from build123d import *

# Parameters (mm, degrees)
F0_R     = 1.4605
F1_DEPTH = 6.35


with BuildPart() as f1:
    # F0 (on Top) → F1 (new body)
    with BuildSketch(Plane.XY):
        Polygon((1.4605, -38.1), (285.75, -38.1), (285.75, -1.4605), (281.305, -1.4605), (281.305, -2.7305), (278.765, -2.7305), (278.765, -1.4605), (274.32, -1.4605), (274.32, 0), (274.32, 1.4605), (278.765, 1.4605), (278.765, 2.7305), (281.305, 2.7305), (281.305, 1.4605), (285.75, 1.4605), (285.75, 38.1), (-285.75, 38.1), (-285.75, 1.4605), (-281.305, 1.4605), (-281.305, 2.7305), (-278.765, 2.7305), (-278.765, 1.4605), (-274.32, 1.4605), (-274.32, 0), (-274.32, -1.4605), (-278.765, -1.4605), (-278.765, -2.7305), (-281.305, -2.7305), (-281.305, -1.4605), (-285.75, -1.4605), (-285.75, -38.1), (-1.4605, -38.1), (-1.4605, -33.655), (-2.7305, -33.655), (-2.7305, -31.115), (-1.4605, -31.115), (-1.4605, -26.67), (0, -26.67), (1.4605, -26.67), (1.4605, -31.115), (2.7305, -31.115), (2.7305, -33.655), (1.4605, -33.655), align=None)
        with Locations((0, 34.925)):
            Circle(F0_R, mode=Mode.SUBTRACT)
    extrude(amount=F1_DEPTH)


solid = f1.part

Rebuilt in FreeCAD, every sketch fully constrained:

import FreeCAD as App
import Part
import Sketcher
from FreeCAD import Vector
Q = App.Units.Quantity

doc = App.newDocument("Part")
params = doc.addObject("Spreadsheet::Sheet", "Params")
for row, (alias, value) in enumerate([
    ("sketch1_diameter", "0.115 in"),
    ("sketch1_width", "0.1 in"),
    ("sketch1_width2", "22.5 in"),
    ("sketch1_width3", "0.05 in"),
    ("sketch1_width4", "0.115 in"),
    ("pad1_length", "0.25 in"),
], start=1):
    params.set(f"A{row}", alias)
    params.set(f"B{row}", "=" + value)
    params.setAlias(f"B{row}", alias)

body = doc.addObject("PartDesign::Body", "Body")

# Sketch on XY plane
sketch1 = body.newObject("Sketcher::SketchObject", "Sketch")
sketch1.AttachmentSupport = (doc.getObject("XY_Plane"), [""])
sketch1.MapMode = "FlatFace"
sketch1.addGeometry(Part.LineSegment(Vector(1.4605, -38.1, 0), Vector(285.75, -38.1, 0)), False)
sketch1.addGeometry(Part.LineSegment(Vector(285.75, -38.1, 0), Vector(285.75, -1.4605, 0)), False)
sketch1.addGeometry(Part.LineSegment(Vector(285.75, -1.4605, 0), Vector(281.305, -1.4605, 0)), False)
sketch1.addGeometry(Part.LineSegment(Vector(281.305, -1.4605, 0), Vector(281.305, -2.7305, 0)), False)
sketch1.addGeometry(Part.LineSegment(Vector(281.305, -2.7305, 0), Vector(278.765, -2.7305, 0)), False)
sketch1.addGeometry(Part.LineSegment(Vector(278.765, -2.7305, 0), Vector(278.765, -1.4605, 0)), False)
sketch1.addGeometry(Part.LineSegment(Vector(278.765, -1.4605, 0), Vector(274.32, -1.4605, 0)), False)
sketch1.addGeometry(Part.LineSegment(Vector(274.32, -1.4605, 0), Vector(274.32, 1.4605, 0)), False)
sketch1.addGeometry(Part.LineSegment(Vector(274.32, 1.4605, 0), Vector(278.765, 1.4605, 0)), False)
sketch1.addGeometry(Part.LineSegment(Vector(278.765, 1.4605, 0), Vector(278.765, 2.7305, 0)), False)
sketch1.addGeometry(Part.LineSegment(Vector(278.765, 2.7305, 0), Vector(281.305, 2.7305, 0)), False)
sketch1.addGeometry(Part.LineSegment(Vector(281.305, 2.7305, 0), Vector(281.305, 1.4605, 0)), False)
sketch1.addGeometry(Part.LineSegment(Vector(281.305, 1.4605, 0), Vector(285.75, 1.4605, 0)), False)
sketch1.addGeometry(Part.LineSegment(Vector(285.75, 1.4605, 0), Vector(285.75, 38.1, 0)), False)
sketch1.addGeometry(Part.LineSegment(Vector(285.75, 38.1, 0), Vector(-285.75, 38.1, 0)), False)
sketch1.addGeometry(Part.LineSegment(Vector(-285.75, 38.1, 0), Vector(-285.75, 1.4605, 0)), False)
sketch1.addGeometry(Part.LineSegment(Vector(-285.75, 1.4605, 0), Vector(-281.305, 1.4605, 0)), False)
sketch1.addGeometry(Part.LineSegment(Vector(-281.305, 1.4605, 0), Vector(-281.305, 2.7305, 0)), False)
sketch1.addGeometry(Part.LineSegment(Vector(-281.305, 2.7305, 0), Vector(-278.765, 2.7305, 0)), False)
sketch1.addGeometry(Part.LineSegment(Vector(-278.765, 2.7305, 0), Vector(-278.765, 1.4605, 0)), False)
sketch1.addGeometry(Part.LineSegment(Vector(-278.765, 1.4605, 0), Vector(-274.32, 1.4605, 0)), False)
sketch1.addGeometry(Part.LineSegment(Vector(-274.32, 1.4605, 0), Vector(-274.32, -1.4605, 0)), False)
sketch1.addGeometry(Part.LineSegment(Vector(-274.32, -1.4605, 0), Vector(-278.765, -1.4605, 0)), False)
sketch1.addGeometry(Part.LineSegment(Vector(-278.765, -1.4605, 0), Vector(-278.765, -2.7305, 0)), False)
sketch1.addGeometry(Part.LineSegment(Vector(-278.765, -2.7305, 0), Vector(-281.305, -2.7305, 0)), False)
sketch1.addGeometry(Part.LineSegment(Vector(-281.305, -2.7305, 0), Vector(-281.305, -1.4605, 0)), False)
sketch1.addGeometry(Part.LineSegment(Vector(-281.305, -1.4605, 0), Vector(-285.75, -1.4605, 0)), False)
sketch1.addGeometry(Part.LineSegment(Vector(-285.75, -1.4605, 0), Vector(-285.75, -38.1, 0)), False)
sketch1.addGeometry(Part.LineSegment(Vector(-285.75, -38.1, 0), Vector(-1.4605, -38.1, 0)), False)
sketch1.addGeometry(Part.LineSegment(Vector(-1.4605, -38.1, 0), Vector(-1.4605, -33.655, 0)), False)
sketch1.addGeometry(Part.LineSegment(Vector(-1.4605, -33.655, 0), Vector(-2.7305, -33.655, 0)), False)
sketch1.addGeometry(Part.LineSegment(Vector(-2.7305, -33.655, 0), Vector(-2.7305, -31.115, 0)), False)
sketch1.addGeometry(Part.LineSegment(Vector(-2.7305, -31.115, 0), Vector(-1.4605, -31.115, 0)), False)
sketch1.addGeometry(Part.LineSegment(Vector(-1.4605, -31.115, 0), Vector(-1.4605, -26.67, 0)), False)
sketch1.addGeometry(Part.LineSegment(Vector(-1.4605, -26.67, 0), Vector(1.4605, -26.67, 0)), False)
sketch1.addGeometry(Part.LineSegment(Vector(1.4605, -26.67, 0), Vector(1.4605, -31.115, 0)), False)
sketch1.addGeometry(Part.LineSegment(Vector(1.4605, -31.115, 0), Vector(2.7305, -31.115, 0)), False)
sketch1.addGeometry(Part.LineSegment(Vector(2.7305, -31.115, 0), Vector(2.7305, -33.655, 0)), False)
sketch1.addGeometry(Part.LineSegment(Vector(2.7305, -33.655, 0), Vector(1.4605, -33.655, 0)), False)
sketch1.addGeometry(Part.LineSegment(Vector(1.4605, -33.655, 0), Vector(1.4605, -38.1, 0)), False)
sketch1.addGeometry(Part.Circle(Vector(0, 34.925, 0), Vector(0, 0, 1), 1.4605), False)
sketch1.addConstraint(Sketcher.Constraint("Coincident", 0, 2, 1, 1))
sketch1.addConstraint(Sketcher.Constraint("Coincident", 1, 2, 2, 1))
sketch1.addConstraint(Sketcher.Constraint("Coincident", 2, 2, 3, 1))
sketch1.addConstraint(Sketcher.Constraint("Coincident", 3, 2, 4, 1))
sketch1.addConstraint(Sketcher.Constraint("Coincident", 4, 2, 5, 1))
sketch1.addConstraint(Sketcher.Constraint("Coincident", 5, 2, 6, 1))
sketch1.addConstraint(Sketcher.Constraint("Coincident", 6, 2, 7, 1))
sketch1.addConstraint(Sketcher.Constraint("Coincident", 7, 2, 8, 1))
sketch1.addConstraint(Sketcher.Constraint("Coincident", 8, 2, 9, 1))
sketch1.addConstraint(Sketcher.Constraint("Coincident", 9, 2, 10, 1))
sketch1.addConstraint(Sketcher.Constraint("Coincident", 10, 2, 11, 1))
sketch1.addConstraint(Sketcher.Constraint("Coincident", 11, 2, 12, 1))
sketch1.addConstraint(Sketcher.Constraint("Coincident", 12, 2, 13, 1))
sketch1.addConstraint(Sketcher.Constraint("Coincident", 13, 2, 14, 1))
sketch1.addConstraint(Sketcher.Constraint("Coincident", 14, 2, 15, 1))
sketch1.addConstraint(Sketcher.Constraint("Coincident", 15, 2, 16, 1))
sketch1.addConstraint(Sketcher.Constraint("Coincident", 16, 2, 17, 1))
sketch1.addConstraint(Sketcher.Constraint("Coincident", 17, 2, 18, 1))
sketch1.addConstraint(Sketcher.Constraint("Coincident", 18, 2, 19, 1))
sketch1.addConstraint(Sketcher.Constraint("Coincident", 19, 2, 20, 1))
sketch1.addConstraint(Sketcher.Constraint("Coincident", 20, 2, 21, 1))
sketch1.addConstraint(Sketcher.Constraint("Coincident", 21, 2, 22, 1))
sketch1.addConstraint(Sketcher.Constraint("Coincident", 22, 2, 23, 1))
sketch1.addConstraint(Sketcher.Constraint("Coincident", 23, 2, 24, 1))
sketch1.addConstraint(Sketcher.Constraint("Coincident", 24, 2, 25, 1))
sketch1.addConstraint(Sketcher.Constraint("Coincident", 25, 2, 26, 1))
sketch1.addConstraint(Sketcher.Constraint("Coincident", 26, 2, 27, 1))
sketch1.addConstraint(Sketcher.Constraint("Coincident", 27, 2, 28, 1))
sketch1.addConstraint(Sketcher.Constraint("Coincident", 28, 2, 29, 1))
sketch1.addConstraint(Sketcher.Constraint("Coincident", 29, 2, 30, 1))
sketch1.addConstraint(Sketcher.Constraint("Coincident", 30, 2, 31, 1))
sketch1.addConstraint(Sketcher.Constraint("Coincident", 31, 2, 32, 1))
sketch1.addConstraint(Sketcher.Constraint("Coincident", 32, 2, 33, 1))
sketch1.addConstraint(Sketcher.Constraint("Coincident", 33, 2, 34, 1))
sketch1.addConstraint(Sketcher.Constraint("Coincident", 34, 2, 35, 1))
sketch1.addConstraint(Sketcher.Constraint("Coincident", 35, 2, 36, 1))
sketch1.addConstraint(Sketcher.Constraint("Coincident", 36, 2, 37, 1))
sketch1.addConstraint(Sketcher.Constraint("Coincident", 37, 2, 38, 1))
sketch1.addConstraint(Sketcher.Constraint("Coincident", 38, 2, 39, 1))
sketch1.addConstraint(Sketcher.Constraint("Coincident", 39, 2, 0, 1))
sketch1.addConstraint(Sketcher.Constraint("Horizontal", 0))
sketch1.addConstraint(Sketcher.Constraint("Vertical", 1))
sketch1.addConstraint(Sketcher.Constraint("Horizontal", 2))
sketch1.addConstraint(Sketcher.Constraint("Vertical", 3))
sketch1.addConstraint(Sketcher.Constraint("Horizontal", 4))
sketch1.addConstraint(Sketcher.Constraint("Vertical", 5))
sketch1.addConstraint(Sketcher.Constraint("Horizontal", 6))
sketch1.addConstraint(Sketcher.Constraint("Vertical", 7))
sketch1.addConstraint(Sketcher.Constraint("Horizontal", 8))
sketch1.addConstraint(Sketcher.Constraint("Vertical", 9))
sketch1.addConstraint(Sketcher.Constraint("Horizontal", 10))
sketch1.addConstraint(Sketcher.Constraint("Vertical", 11))
sketch1.addConstraint(Sketcher.Constraint("Horizontal", 12))
sketch1.addConstraint(Sketcher.Constraint("Vertical", 13))
sketch1.addConstraint(Sketcher.Constraint("Horizontal", 14))
sketch1.addConstraint(Sketcher.Constraint("Vertical", 15))
sketch1.addConstraint(Sketcher.Constraint("Horizontal", 16))
sketch1.addConstraint(Sketcher.Constraint("Vertical", 17))
sketch1.addConstraint(Sketcher.Constraint("Horizontal", 18))
sketch1.addConstraint(Sketcher.Constraint("Vertical", 19))
sketch1.addConstraint(Sketcher.Constraint("Horizontal", 20))
sketch1.addConstraint(Sketcher.Constraint("Vertical", 21))
sketch1.addConstraint(Sketcher.Constraint("Horizontal", 22))
sketch1.addConstraint(Sketcher.Constraint("Vertical", 23))
sketch1.addConstraint(Sketcher.Constraint("Horizontal", 24))
sketch1.addConstraint(Sketcher.Constraint("Vertical", 25))
sketch1.addConstraint(Sketcher.Constraint("Horizontal", 26))
sketch1.addConstraint(Sketcher.Constraint("Vertical", 27))
sketch1.addConstraint(Sketcher.Constraint("Horizontal", 28))
sketch1.addConstraint(Sketcher.Constraint("Vertical", 29))
sketch1.addConstraint(Sketcher.Constraint("Horizontal", 30))
sketch1.addConstraint(Sketcher.Constraint("Vertical", 31))
sketch1.addConstraint(Sketcher.Constraint("Horizontal", 32))
sketch1.addConstraint(Sketcher.Constraint("Vertical", 33))
sketch1.addConstraint(Sketcher.Constraint("Horizontal", 34))
sketch1.addConstraint(Sketcher.Constraint("Vertical", 35))
sketch1.addConstraint(Sketcher.Constraint("Horizontal", 36))
sketch1.addConstraint(Sketcher.Constraint("Vertical", 37))
sketch1.addConstraint(Sketcher.Constraint("Horizontal", 38))
sketch1.addConstraint(Sketcher.Constraint("Vertical", 39))
sketch1.addConstraint(Sketcher.Constraint("Symmetric", 0, 2, 14, 2, -1, 1))
sketch1.addConstraint(Sketcher.Constraint("Symmetric", 2, 2, 16, 2, -1, 1))
sketch1.addConstraint(Sketcher.Constraint("Symmetric", 4, 2, 18, 2, -1, 1))
sketch1.addConstraint(Sketcher.Constraint("Symmetric", 6, 2, 20, 2, -1, 1))
sketch1.addConstraint(Sketcher.Constraint("Symmetric", 8, 2, 22, 2, -1, 1))
sketch1.addConstraint(Sketcher.Constraint("Symmetric", 10, 2, 24, 2, -1, 1))
sketch1.addConstraint(Sketcher.Constraint("Symmetric", 12, 2, 26, 2, -1, 1))
sketch1.addConstraint(Sketcher.Constraint("Symmetric", 12, 2, 15, 2, -2))
sketch1.addConstraint(Sketcher.Constraint("Symmetric", 10, 2, 17, 2, -2))
sketch1.addConstraint(Sketcher.Constraint("Symmetric", 8, 2, 19, 2, -2))
sketch1.addConstraint(Sketcher.Constraint("Symmetric", 32, 2, 35, 2, -2))
sketch1.addConstraint(Sketcher.Constraint("Symmetric", 30, 2, 37, 2, -2))
sketch1.addConstraint(Sketcher.Constraint("Symmetric", 28, 2, 39, 2, -2))
sketch1.addConstraint(Sketcher.Constraint("PointOnObject", 40, 3, -2))
sketch1.addConstraint(Sketcher.Constraint("Horizontal", 2, 2, 5, 2))
sketch1.addConstraint(Sketcher.Constraint("Vertical", 29, 2, 32, 2))
sketch1.addConstraint(Sketcher.Constraint("Equal", 2, 6))
sketch1.addConstraint(Sketcher.Constraint("Equal", 38, 3))
sketch1.addConstraint(Sketcher.Constraint("Equal", 34, 7))
sketch1.addConstraint(Sketcher.Constraint("Equal", 26, 29))
sketch1.addConstraint(Sketcher.Constraint("Equal", 24, 31))
sketch1.addConstraint(Sketcher.Constraint("Equal", 29, 33))
sketch1.addConstraint(Sketcher.Constraint("Diameter", 40, Q("0.115 in")))
sketch1.addConstraint(Sketcher.Constraint("DistanceX", 4, 2, 4, 1, Q("0.1 in")))
sketch1.addConstraint(Sketcher.Constraint("DistanceX", 14, 2, 14, 1, Q("22.5 in")))
sketch1.addConstraint(Sketcher.Constraint("DistanceX", 30, 2, 30, 1, Q("0.05 in")))
sketch1.addConstraint(Sketcher.Constraint("DistanceY", 0, 2, -1, 1, Q("1.5 in")))
sketch1.addConstraint(Sketcher.Constraint("DistanceX", -1, 1, 6, 2, Q("10.8 in")))
sketch1.addConstraint(Sketcher.Constraint("DistanceY", 29, 2, 40, 3, Q("2.7 in")))
sketch1.addConstraint(Sketcher.Constraint("DistanceX", 34, 1, 34, 2, Q("0.115 in")))
sketch1.setExpression("Constraints[102]", "Params.sketch1_diameter")
sketch1.setExpression("Constraints[103]", "Params.sketch1_width")
sketch1.setExpression("Constraints[104]", "Params.sketch1_width2")
sketch1.setExpression("Constraints[105]", "Params.sketch1_width3")
sketch1.setExpression("Constraints[109]", "Params.sketch1_width4")
pad1 = body.newObject("PartDesign::Pad", "Pad")
pad1.Profile = sketch1
pad1.setExpression("Length", "Params.pad1_length")

doc.recompute()
